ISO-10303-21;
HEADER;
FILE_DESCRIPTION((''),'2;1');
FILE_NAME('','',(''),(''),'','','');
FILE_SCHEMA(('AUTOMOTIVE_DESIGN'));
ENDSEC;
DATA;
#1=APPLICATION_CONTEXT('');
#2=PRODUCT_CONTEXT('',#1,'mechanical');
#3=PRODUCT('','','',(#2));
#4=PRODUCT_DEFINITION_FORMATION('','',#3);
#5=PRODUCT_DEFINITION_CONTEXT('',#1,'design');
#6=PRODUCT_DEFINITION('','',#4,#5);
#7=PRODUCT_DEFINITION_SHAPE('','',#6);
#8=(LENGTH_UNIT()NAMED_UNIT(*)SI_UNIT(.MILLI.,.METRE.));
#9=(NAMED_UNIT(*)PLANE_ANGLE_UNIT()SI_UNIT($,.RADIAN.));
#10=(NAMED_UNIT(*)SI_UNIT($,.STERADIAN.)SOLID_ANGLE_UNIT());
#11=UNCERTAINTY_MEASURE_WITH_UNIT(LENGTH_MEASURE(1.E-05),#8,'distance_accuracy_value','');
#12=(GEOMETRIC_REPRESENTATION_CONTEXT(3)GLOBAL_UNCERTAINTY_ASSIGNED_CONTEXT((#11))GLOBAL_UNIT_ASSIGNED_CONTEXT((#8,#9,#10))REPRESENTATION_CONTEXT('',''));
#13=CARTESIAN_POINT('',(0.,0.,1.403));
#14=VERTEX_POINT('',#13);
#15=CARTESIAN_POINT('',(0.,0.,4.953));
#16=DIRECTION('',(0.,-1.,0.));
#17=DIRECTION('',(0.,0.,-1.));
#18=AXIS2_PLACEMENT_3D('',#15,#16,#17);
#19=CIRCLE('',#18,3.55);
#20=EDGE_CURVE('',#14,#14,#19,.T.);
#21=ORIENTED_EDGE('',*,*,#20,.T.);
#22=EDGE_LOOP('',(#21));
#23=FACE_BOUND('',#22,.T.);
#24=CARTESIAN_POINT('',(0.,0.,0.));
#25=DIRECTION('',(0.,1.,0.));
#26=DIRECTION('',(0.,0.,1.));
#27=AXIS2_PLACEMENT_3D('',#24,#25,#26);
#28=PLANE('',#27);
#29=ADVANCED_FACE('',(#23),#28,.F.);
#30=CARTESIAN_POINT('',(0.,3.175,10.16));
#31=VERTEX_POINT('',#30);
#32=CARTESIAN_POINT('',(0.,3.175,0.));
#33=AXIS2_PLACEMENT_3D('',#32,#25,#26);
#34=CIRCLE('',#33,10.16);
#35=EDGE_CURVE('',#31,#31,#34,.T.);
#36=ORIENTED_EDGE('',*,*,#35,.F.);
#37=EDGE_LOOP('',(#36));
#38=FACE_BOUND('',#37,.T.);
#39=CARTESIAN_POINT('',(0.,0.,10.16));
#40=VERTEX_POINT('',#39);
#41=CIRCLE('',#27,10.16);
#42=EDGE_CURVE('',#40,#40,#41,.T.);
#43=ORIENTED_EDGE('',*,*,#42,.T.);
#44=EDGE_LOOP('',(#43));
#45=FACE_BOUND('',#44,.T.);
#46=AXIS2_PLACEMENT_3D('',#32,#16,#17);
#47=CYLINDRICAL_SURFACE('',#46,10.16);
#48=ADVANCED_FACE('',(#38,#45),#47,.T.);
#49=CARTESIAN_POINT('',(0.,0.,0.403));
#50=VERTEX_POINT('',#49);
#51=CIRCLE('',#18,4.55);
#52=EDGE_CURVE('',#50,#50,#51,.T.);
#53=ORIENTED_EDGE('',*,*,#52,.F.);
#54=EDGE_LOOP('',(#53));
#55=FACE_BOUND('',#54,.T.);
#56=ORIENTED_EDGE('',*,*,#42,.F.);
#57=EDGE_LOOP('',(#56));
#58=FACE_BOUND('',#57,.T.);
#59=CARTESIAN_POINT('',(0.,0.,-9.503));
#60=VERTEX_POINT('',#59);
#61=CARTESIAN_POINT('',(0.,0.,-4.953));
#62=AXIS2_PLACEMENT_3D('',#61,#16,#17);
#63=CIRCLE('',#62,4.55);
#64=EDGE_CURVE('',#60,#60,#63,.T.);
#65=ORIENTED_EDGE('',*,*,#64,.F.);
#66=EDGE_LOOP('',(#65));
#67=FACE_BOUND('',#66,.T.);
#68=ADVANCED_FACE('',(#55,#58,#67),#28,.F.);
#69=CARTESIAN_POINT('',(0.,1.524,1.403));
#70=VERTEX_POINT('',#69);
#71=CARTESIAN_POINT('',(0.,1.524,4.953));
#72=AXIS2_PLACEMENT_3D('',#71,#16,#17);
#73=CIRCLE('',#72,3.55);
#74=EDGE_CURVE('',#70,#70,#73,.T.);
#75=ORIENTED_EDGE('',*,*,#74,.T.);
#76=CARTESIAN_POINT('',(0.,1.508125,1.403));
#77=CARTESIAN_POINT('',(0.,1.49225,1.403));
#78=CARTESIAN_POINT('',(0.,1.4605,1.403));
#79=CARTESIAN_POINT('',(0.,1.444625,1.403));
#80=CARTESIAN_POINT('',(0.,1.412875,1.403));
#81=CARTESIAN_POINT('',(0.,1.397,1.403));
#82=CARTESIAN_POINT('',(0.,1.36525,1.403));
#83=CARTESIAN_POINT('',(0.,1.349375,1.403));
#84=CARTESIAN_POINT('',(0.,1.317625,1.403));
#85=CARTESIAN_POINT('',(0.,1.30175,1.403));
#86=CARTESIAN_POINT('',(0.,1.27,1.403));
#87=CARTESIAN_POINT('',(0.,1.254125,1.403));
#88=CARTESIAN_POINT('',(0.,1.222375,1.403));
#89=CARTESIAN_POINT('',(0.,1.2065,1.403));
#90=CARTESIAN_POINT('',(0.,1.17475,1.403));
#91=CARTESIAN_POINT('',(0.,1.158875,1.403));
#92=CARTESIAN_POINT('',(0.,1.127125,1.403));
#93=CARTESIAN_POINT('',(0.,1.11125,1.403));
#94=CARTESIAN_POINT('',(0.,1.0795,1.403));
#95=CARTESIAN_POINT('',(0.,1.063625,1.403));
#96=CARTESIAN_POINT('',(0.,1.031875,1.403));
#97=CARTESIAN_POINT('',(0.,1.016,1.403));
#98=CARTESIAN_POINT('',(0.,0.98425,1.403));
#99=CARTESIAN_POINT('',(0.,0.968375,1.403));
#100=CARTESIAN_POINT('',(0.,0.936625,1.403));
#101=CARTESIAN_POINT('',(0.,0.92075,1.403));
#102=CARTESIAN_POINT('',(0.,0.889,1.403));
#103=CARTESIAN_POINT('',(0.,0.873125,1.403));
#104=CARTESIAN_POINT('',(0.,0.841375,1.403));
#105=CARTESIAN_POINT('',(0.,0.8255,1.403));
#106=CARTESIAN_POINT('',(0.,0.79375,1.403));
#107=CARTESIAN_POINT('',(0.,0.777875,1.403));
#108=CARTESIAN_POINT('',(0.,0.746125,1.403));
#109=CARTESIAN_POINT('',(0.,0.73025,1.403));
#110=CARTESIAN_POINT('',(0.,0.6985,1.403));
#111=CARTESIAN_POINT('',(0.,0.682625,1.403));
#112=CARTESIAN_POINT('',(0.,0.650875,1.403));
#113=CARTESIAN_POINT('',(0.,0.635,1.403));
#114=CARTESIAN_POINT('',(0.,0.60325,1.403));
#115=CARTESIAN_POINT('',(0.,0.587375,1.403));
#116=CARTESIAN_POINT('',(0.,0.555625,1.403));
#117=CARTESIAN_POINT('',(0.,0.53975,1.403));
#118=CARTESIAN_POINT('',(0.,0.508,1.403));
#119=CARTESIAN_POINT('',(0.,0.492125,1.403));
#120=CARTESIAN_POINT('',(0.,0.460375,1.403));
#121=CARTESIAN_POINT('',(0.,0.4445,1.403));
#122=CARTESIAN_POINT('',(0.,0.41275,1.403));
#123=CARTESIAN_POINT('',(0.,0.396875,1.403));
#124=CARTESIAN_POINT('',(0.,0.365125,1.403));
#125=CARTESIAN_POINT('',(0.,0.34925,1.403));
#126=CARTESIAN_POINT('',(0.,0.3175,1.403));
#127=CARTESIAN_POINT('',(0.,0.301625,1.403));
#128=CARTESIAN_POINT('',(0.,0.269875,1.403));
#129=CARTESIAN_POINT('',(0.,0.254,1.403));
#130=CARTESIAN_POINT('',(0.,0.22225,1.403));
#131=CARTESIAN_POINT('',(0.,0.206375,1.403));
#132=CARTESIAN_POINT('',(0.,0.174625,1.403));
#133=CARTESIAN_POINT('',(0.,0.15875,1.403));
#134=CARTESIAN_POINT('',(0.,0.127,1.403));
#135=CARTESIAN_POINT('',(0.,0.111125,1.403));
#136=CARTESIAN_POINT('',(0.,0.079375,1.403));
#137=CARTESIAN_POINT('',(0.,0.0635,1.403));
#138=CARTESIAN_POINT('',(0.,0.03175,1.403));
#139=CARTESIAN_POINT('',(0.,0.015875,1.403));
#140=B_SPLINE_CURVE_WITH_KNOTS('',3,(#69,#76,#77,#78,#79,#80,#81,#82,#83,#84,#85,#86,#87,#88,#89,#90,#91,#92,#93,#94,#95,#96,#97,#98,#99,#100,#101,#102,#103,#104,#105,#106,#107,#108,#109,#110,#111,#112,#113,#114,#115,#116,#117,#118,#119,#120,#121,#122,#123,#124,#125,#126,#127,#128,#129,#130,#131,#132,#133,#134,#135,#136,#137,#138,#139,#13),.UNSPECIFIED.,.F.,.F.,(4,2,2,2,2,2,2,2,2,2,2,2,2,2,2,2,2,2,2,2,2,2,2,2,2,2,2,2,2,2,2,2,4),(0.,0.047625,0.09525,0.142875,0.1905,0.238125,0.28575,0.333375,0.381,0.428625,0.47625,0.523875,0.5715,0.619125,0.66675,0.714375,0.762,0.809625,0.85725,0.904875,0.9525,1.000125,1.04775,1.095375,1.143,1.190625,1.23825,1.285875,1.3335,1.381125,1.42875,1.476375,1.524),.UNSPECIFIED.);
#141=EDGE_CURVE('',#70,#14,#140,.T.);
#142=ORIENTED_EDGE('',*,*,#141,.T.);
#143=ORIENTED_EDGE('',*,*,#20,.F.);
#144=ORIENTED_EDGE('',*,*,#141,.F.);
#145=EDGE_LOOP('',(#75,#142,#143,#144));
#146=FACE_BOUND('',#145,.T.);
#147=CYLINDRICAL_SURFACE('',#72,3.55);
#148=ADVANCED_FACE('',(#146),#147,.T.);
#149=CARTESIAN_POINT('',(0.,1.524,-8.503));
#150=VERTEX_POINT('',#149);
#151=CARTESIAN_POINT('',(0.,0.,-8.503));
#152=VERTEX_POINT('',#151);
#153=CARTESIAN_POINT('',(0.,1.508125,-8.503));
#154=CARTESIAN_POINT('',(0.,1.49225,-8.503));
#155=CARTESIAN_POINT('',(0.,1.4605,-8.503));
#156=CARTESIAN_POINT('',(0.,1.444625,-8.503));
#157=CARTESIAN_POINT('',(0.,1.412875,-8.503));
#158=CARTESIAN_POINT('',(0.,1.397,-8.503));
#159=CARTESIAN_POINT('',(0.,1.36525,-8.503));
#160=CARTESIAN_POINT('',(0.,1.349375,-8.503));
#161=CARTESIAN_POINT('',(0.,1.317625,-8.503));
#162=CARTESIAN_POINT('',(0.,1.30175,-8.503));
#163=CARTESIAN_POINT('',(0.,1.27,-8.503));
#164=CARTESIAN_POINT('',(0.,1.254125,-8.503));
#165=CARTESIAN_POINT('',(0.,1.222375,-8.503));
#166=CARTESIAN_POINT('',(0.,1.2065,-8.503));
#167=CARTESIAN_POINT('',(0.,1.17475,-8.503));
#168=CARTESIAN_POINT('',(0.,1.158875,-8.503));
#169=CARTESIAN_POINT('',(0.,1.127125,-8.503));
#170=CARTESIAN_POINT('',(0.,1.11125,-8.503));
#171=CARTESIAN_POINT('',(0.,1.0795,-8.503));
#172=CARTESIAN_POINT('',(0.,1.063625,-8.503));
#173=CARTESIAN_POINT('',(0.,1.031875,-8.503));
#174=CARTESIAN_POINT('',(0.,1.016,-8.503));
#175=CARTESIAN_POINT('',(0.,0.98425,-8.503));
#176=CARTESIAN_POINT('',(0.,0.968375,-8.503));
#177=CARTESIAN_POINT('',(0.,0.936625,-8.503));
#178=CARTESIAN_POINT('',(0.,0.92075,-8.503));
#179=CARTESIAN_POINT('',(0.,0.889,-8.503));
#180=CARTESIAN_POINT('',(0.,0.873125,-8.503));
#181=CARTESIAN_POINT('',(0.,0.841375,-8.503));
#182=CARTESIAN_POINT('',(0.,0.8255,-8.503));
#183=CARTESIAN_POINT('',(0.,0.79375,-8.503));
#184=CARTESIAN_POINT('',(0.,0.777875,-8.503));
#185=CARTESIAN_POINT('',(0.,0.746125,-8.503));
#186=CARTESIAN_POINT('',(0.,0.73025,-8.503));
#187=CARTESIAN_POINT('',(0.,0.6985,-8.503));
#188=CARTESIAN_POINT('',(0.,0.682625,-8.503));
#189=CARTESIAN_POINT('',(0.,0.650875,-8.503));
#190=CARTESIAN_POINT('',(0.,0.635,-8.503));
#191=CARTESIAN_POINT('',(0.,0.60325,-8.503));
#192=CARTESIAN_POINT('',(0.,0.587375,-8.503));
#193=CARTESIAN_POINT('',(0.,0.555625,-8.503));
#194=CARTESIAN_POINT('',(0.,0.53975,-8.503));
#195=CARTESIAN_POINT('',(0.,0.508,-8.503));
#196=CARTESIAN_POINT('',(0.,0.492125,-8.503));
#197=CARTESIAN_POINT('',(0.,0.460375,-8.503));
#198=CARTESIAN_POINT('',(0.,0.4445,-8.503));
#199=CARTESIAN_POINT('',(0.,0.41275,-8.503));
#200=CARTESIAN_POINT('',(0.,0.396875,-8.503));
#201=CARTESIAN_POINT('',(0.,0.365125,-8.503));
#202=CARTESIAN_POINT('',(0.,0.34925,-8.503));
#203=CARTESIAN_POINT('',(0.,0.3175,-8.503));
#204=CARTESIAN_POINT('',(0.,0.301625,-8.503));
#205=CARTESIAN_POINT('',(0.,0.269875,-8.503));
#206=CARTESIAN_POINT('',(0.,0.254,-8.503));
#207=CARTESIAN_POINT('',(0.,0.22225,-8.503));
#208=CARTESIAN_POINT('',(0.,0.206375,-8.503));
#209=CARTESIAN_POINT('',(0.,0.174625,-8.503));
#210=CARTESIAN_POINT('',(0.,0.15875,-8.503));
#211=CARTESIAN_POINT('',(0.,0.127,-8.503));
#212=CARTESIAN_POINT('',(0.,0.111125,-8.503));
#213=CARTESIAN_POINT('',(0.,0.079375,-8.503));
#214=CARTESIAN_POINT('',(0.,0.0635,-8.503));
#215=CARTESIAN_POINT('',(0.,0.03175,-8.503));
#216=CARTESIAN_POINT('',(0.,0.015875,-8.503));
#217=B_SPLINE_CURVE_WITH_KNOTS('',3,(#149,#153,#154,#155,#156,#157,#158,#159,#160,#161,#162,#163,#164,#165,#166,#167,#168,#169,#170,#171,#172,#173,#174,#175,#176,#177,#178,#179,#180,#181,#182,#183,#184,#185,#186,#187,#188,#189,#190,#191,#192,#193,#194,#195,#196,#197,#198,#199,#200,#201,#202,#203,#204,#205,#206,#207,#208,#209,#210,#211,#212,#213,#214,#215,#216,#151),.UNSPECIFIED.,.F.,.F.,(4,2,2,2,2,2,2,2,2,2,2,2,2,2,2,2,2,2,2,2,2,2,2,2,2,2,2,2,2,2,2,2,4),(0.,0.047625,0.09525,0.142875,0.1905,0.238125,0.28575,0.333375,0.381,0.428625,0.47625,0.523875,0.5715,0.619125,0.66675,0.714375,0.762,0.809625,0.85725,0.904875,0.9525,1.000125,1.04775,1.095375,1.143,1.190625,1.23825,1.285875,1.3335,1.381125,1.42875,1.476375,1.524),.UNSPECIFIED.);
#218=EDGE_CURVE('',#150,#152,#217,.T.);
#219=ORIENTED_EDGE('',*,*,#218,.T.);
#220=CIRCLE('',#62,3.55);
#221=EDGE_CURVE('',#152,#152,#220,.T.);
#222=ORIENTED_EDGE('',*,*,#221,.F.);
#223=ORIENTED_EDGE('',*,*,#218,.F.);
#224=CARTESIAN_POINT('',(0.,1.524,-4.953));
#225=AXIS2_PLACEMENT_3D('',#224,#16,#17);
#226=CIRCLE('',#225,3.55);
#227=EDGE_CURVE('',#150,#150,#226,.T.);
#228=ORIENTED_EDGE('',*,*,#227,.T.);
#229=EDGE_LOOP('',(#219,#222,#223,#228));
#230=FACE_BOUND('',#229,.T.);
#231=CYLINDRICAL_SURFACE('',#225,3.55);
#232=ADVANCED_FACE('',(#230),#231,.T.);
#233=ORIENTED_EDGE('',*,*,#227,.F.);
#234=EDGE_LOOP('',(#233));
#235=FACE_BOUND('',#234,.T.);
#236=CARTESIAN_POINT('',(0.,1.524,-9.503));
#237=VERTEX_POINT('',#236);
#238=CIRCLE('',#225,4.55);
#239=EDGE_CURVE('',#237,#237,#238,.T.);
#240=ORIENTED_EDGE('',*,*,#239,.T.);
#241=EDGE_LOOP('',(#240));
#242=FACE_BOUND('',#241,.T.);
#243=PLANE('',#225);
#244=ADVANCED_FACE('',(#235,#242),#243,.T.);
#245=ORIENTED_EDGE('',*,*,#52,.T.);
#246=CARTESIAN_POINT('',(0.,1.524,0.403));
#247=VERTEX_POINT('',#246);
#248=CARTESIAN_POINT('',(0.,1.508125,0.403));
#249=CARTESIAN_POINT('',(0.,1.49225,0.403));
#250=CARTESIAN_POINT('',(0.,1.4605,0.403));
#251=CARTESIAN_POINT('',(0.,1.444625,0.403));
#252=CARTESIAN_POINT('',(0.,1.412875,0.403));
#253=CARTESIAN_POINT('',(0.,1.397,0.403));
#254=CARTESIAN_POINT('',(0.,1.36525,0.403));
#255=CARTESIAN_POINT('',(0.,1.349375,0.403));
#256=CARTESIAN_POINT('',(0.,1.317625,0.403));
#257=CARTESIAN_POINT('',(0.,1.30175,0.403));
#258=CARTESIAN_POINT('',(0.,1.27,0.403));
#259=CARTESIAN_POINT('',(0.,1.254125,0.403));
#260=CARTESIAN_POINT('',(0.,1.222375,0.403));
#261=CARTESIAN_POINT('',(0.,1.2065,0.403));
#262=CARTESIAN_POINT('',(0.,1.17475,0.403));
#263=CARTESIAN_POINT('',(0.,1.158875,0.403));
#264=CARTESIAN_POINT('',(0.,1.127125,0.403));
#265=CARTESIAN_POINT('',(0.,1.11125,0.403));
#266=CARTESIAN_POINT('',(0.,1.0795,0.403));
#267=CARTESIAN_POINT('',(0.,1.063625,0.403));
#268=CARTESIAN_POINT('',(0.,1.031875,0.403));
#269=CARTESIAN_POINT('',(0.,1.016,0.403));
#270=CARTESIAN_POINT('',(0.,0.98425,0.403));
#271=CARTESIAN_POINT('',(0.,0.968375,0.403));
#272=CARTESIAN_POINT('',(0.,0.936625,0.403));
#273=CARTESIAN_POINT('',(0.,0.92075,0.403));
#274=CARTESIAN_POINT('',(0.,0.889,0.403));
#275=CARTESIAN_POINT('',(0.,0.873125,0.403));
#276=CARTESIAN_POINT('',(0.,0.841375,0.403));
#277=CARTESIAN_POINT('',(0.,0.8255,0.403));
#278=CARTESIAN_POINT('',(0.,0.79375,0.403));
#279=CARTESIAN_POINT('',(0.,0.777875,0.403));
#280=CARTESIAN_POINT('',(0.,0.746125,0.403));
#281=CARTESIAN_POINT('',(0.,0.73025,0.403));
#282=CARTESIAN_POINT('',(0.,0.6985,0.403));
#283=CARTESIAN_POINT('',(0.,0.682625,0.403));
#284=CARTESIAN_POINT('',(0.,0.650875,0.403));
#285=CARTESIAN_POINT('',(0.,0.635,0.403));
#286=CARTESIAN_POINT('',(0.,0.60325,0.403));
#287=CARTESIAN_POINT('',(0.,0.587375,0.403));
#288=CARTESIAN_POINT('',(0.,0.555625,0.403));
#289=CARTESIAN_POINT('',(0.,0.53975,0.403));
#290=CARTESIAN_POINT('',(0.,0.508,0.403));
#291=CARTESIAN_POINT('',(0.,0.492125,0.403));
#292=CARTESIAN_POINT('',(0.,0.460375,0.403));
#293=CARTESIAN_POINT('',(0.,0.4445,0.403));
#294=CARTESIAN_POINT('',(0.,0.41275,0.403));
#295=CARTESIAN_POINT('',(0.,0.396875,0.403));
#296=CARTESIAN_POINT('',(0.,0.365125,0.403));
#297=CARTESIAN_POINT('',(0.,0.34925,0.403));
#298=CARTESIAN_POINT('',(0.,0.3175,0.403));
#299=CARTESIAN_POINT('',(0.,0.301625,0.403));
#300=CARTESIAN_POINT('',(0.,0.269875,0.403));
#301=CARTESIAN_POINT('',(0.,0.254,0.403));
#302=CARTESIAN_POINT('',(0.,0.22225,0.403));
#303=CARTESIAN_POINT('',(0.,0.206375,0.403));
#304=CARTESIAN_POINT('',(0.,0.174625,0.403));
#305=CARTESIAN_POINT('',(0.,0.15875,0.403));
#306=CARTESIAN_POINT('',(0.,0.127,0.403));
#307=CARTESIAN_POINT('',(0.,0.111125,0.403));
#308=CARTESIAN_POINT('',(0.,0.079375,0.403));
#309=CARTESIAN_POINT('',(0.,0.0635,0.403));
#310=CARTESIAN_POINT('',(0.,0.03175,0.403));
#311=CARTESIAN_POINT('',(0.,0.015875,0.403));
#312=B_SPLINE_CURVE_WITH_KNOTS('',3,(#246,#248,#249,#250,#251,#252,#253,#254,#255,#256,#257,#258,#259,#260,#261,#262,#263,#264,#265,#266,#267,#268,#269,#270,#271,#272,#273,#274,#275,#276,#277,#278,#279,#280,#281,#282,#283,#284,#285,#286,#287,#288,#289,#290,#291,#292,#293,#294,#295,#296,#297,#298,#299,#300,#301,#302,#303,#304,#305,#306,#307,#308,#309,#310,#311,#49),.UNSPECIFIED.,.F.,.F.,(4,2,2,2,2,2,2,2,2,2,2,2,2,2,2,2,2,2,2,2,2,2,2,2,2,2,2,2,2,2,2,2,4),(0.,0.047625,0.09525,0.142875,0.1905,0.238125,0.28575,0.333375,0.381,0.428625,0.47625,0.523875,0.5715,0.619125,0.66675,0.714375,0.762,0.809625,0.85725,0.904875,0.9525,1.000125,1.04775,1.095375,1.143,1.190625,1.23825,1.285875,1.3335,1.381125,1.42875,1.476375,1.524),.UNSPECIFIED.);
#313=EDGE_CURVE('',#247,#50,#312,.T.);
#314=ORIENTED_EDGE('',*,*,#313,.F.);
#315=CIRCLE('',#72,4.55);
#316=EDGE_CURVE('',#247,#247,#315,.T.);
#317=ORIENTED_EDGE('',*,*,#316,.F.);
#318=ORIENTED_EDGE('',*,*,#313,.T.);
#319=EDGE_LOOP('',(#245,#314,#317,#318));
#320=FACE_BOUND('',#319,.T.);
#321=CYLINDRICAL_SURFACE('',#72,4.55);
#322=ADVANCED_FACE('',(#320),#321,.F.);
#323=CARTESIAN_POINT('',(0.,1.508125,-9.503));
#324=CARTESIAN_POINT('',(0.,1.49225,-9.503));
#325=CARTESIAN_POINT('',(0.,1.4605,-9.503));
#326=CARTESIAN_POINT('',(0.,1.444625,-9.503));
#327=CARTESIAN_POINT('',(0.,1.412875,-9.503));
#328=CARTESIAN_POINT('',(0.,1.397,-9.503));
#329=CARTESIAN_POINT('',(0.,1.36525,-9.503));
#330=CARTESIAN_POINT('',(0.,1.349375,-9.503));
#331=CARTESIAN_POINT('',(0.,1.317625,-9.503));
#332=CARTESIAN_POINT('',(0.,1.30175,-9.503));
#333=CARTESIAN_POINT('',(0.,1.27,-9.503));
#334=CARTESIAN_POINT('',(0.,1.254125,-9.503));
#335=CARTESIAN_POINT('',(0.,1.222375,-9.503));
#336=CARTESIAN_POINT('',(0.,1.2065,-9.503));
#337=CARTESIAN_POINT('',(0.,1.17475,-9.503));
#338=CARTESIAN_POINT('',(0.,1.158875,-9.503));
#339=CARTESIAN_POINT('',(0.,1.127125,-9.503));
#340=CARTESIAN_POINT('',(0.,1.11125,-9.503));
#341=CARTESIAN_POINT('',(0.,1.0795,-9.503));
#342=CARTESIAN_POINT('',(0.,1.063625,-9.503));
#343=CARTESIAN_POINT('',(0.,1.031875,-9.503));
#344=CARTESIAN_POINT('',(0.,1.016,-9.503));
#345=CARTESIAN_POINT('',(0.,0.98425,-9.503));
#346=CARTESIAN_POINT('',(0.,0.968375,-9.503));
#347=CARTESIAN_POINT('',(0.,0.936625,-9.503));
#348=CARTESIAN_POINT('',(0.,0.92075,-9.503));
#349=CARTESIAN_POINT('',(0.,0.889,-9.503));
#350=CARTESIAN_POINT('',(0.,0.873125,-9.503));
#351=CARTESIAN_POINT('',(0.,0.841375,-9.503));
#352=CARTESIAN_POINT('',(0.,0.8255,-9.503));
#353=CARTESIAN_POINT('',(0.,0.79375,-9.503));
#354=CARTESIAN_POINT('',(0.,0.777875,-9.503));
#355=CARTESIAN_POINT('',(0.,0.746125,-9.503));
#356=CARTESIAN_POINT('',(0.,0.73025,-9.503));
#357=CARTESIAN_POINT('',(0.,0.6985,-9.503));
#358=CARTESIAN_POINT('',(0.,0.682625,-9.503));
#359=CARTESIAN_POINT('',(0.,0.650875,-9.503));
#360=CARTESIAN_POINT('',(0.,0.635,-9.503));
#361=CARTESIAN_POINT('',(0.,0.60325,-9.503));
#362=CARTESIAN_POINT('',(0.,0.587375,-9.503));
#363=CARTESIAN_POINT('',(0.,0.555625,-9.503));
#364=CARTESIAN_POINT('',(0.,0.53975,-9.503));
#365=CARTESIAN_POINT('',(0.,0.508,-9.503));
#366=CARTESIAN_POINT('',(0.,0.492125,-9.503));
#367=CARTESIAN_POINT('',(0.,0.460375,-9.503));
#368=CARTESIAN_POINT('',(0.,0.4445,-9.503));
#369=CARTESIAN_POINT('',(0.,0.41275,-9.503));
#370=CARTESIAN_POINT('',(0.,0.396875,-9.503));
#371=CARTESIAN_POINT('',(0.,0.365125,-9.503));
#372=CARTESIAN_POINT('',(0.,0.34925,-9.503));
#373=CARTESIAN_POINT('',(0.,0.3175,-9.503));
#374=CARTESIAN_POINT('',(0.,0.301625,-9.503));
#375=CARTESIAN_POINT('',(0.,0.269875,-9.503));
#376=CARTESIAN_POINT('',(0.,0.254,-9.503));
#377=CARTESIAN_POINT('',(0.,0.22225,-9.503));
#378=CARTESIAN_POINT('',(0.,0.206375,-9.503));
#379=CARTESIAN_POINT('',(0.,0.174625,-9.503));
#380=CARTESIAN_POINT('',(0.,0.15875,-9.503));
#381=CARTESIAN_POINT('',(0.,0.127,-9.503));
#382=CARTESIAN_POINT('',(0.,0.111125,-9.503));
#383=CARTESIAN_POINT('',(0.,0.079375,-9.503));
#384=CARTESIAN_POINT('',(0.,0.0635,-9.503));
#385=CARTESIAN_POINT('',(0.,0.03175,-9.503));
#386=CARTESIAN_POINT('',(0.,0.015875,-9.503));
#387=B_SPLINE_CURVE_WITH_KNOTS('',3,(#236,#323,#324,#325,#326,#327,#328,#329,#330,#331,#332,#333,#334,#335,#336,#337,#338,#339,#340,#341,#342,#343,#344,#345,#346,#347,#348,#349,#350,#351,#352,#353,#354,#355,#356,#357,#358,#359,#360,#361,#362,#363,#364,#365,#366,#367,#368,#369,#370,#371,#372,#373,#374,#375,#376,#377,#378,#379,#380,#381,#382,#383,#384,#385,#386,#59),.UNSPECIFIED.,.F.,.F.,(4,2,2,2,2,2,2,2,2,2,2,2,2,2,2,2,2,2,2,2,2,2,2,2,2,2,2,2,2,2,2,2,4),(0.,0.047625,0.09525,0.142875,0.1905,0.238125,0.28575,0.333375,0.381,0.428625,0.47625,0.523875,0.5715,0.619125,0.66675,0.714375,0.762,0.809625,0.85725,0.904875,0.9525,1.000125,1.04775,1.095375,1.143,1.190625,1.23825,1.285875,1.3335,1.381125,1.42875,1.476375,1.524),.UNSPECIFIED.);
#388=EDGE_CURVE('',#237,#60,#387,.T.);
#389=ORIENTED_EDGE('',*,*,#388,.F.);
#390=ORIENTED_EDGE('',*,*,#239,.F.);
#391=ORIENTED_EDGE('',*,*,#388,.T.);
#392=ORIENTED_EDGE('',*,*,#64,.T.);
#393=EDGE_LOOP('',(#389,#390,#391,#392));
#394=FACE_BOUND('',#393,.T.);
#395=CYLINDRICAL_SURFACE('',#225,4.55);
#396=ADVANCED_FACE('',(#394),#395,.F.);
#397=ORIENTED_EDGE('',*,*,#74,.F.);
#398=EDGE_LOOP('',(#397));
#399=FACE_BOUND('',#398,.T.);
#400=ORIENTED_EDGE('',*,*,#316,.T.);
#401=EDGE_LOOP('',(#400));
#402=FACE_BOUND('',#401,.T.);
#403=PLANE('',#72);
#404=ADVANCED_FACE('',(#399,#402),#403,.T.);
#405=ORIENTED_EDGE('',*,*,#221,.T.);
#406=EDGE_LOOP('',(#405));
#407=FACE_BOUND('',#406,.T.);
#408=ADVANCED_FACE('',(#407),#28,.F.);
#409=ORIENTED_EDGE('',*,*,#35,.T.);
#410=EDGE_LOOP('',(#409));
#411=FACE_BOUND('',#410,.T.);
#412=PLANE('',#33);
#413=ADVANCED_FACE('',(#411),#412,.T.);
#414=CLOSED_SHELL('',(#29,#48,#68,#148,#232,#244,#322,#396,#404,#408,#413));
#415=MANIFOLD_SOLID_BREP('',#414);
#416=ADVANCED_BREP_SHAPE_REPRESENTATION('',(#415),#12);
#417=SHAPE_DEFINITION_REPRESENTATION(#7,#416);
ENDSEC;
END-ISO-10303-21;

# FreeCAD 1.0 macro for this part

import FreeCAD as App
import Part
import Sketcher
Q = App.Units.Quantity

doc = App.newDocument("Part")
body = doc.addObject("PartDesign::Body", "Body")

sketch1 = doc.addObject("Sketcher::SketchObject", "Sketch")
body.addObject(sketch1)
sketch1.AttachmentSupport = (doc.XZ_Plane, [""])
sketch1.MapMode = "FlatFace"
sketch1.addGeometry(Part.Circle(App.Vector(0, 0, 0), App.Vector(0, 0, 1), 10), False)
sketch1.addConstraint(Sketcher.Constraint("Coincident", 0, 3, -1, 1))
sketch1.addConstraint(Sketcher.Constraint("Diameter", 0, Q("0.8 in")))
pad1 = doc.addObject("PartDesign::Pad", "Pad")
body.addObject(pad1)
pad1.Profile = sketch1
pad1.Length = Q("0.125 in")
pad1.Reversed = True

sketch2 = doc.addObject("Sketcher::SketchObject", "Sketch001")
body.addObject(sketch2)
sketch2.AttachmentSupport = (doc.XZ_Plane, [""])
sketch2.MapMode = "FlatFace"
sketch2.addGeometry(Part.Circle(App.Vector(0, -5, 0), App.Vector(0, 0, 1), 4.6), False)
sketch2.addGeometry(Part.Circle(App.Vector(0, -5, 0), App.Vector(0, 0, 1), 3.6), False)
sketch2.addGeometry(Part.Circle(App.Vector(0, 5, 0), App.Vector(0, 0, 1), 4.6), False)
sketch2.addGeometry(Part.Circle(App.Vector(0, 5, 0), App.Vector(0, 0, 1), 3.6), False)
sketch2.addConstraint(Sketcher.Constraint("Coincident", 1, 3, 0, 3))
sketch2.addConstraint(Sketcher.Constraint("Coincident", 3, 3, 2, 3))
sketch2.addConstraint(Sketcher.Constraint("Equal", 0, 2))
sketch2.addConstraint(Sketcher.Constraint("Equal", 1, 3))
sketch2.addConstraint(Sketcher.Constraint("Symmetric", 0, 3, 2, 3, -1, 1))
sketch2.addConstraint(Sketcher.Constraint("PointOnObject", 0, 3, -2))
sketch2.addConstraint(Sketcher.Constraint("Diameter", 0, 9.1))
sketch2.addConstraint(Sketcher.Constraint("Diameter", 1, 7.1))
sketch2.addConstraint(Sketcher.Constraint("DistanceY", 0, 3, 2, 3, Q("0.39 in")))
pocket1 = doc.addObject("PartDesign::Pocket", "Pocket")
body.addObject(pocket1)
pocket1.Profile = sketch2
pocket1.Length = Q("0.06 in")

doc.recompute()
